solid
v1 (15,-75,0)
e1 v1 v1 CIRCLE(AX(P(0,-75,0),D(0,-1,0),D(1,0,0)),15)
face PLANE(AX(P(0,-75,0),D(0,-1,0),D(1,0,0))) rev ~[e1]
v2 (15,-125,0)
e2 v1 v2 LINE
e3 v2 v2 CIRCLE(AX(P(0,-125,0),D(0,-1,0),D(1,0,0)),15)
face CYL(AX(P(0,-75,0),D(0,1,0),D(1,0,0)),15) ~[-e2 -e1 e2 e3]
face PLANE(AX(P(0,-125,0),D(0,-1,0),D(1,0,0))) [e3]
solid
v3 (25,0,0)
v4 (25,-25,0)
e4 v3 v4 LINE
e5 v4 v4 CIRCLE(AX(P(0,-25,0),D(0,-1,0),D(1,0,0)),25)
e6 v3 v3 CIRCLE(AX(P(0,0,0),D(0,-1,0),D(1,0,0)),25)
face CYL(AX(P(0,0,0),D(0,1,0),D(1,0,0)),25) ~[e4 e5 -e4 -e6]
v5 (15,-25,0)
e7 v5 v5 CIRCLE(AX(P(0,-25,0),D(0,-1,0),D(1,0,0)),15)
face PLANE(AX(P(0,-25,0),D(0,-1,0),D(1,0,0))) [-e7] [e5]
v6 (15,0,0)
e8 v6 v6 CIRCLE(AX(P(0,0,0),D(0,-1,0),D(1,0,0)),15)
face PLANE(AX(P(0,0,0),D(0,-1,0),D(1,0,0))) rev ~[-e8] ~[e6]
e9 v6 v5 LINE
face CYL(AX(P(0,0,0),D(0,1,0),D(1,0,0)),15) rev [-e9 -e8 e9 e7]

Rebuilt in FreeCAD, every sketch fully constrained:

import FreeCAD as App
import Part
import Sketcher

doc = App.newDocument("Part")
body = doc.addObject("PartDesign::Body", "Body")

# Sketch on XZ plane
sketch1 = body.newObject("Sketcher::SketchObject", "Sketch")
sketch1.AttachmentSupport = (doc.getObject("XZ_Plane"), [""])
sketch1.MapMode = "FlatFace"
sketch1.addGeometry([
    Part.Circle(App.Vector(0, 0, 0), App.Vector(0, 0, 1), 25),
    Part.Circle(App.Vector(0, 0, 0), App.Vector(0, 0, 1), 15),
], False)
sketch1.addConstraint([
    Sketcher.Constraint("Coincident", 0, 3, -1, 1),
    Sketcher.Constraint("Coincident", 1, 3, -1, 1),
    Sketcher.Constraint("Diameter", 0, 50.0),
    Sketcher.Constraint("Diameter", 1, 30.0),
])
pad1 = body.newObject("PartDesign::Pad", "Pad")
pad1.Profile = sketch1
pad1.Length = 25
body2 = doc.addObject("PartDesign::Body", "Body001")

# Sketch on XZ plane
sketch2 = body2.newObject("Sketcher::SketchObject", "Sketch001")
sketch2.AttachmentSupport = (doc.getObject("XZ_Plane001"), [""])
sketch2.MapMode = "FlatFace"
sketch2.AttachmentOffset = App.Placement(App.Vector(0, 0, 75), App.Rotation())
sketch2.addGeometry(Part.Circle(App.Vector(0, 0, 0), App.Vector(0, 0, 1), 15), False)
sketch2.addConstraint([
    Sketcher.Constraint("Coincident", 0, 3, -1, 1),
    Sketcher.Constraint("Diameter", 0, 30.0),
])
pad2 = body2.newObject("PartDesign::Pad", "Pad001")
pad2.Profile = sketch2
pad2.Length = 50

doc.recompute()
